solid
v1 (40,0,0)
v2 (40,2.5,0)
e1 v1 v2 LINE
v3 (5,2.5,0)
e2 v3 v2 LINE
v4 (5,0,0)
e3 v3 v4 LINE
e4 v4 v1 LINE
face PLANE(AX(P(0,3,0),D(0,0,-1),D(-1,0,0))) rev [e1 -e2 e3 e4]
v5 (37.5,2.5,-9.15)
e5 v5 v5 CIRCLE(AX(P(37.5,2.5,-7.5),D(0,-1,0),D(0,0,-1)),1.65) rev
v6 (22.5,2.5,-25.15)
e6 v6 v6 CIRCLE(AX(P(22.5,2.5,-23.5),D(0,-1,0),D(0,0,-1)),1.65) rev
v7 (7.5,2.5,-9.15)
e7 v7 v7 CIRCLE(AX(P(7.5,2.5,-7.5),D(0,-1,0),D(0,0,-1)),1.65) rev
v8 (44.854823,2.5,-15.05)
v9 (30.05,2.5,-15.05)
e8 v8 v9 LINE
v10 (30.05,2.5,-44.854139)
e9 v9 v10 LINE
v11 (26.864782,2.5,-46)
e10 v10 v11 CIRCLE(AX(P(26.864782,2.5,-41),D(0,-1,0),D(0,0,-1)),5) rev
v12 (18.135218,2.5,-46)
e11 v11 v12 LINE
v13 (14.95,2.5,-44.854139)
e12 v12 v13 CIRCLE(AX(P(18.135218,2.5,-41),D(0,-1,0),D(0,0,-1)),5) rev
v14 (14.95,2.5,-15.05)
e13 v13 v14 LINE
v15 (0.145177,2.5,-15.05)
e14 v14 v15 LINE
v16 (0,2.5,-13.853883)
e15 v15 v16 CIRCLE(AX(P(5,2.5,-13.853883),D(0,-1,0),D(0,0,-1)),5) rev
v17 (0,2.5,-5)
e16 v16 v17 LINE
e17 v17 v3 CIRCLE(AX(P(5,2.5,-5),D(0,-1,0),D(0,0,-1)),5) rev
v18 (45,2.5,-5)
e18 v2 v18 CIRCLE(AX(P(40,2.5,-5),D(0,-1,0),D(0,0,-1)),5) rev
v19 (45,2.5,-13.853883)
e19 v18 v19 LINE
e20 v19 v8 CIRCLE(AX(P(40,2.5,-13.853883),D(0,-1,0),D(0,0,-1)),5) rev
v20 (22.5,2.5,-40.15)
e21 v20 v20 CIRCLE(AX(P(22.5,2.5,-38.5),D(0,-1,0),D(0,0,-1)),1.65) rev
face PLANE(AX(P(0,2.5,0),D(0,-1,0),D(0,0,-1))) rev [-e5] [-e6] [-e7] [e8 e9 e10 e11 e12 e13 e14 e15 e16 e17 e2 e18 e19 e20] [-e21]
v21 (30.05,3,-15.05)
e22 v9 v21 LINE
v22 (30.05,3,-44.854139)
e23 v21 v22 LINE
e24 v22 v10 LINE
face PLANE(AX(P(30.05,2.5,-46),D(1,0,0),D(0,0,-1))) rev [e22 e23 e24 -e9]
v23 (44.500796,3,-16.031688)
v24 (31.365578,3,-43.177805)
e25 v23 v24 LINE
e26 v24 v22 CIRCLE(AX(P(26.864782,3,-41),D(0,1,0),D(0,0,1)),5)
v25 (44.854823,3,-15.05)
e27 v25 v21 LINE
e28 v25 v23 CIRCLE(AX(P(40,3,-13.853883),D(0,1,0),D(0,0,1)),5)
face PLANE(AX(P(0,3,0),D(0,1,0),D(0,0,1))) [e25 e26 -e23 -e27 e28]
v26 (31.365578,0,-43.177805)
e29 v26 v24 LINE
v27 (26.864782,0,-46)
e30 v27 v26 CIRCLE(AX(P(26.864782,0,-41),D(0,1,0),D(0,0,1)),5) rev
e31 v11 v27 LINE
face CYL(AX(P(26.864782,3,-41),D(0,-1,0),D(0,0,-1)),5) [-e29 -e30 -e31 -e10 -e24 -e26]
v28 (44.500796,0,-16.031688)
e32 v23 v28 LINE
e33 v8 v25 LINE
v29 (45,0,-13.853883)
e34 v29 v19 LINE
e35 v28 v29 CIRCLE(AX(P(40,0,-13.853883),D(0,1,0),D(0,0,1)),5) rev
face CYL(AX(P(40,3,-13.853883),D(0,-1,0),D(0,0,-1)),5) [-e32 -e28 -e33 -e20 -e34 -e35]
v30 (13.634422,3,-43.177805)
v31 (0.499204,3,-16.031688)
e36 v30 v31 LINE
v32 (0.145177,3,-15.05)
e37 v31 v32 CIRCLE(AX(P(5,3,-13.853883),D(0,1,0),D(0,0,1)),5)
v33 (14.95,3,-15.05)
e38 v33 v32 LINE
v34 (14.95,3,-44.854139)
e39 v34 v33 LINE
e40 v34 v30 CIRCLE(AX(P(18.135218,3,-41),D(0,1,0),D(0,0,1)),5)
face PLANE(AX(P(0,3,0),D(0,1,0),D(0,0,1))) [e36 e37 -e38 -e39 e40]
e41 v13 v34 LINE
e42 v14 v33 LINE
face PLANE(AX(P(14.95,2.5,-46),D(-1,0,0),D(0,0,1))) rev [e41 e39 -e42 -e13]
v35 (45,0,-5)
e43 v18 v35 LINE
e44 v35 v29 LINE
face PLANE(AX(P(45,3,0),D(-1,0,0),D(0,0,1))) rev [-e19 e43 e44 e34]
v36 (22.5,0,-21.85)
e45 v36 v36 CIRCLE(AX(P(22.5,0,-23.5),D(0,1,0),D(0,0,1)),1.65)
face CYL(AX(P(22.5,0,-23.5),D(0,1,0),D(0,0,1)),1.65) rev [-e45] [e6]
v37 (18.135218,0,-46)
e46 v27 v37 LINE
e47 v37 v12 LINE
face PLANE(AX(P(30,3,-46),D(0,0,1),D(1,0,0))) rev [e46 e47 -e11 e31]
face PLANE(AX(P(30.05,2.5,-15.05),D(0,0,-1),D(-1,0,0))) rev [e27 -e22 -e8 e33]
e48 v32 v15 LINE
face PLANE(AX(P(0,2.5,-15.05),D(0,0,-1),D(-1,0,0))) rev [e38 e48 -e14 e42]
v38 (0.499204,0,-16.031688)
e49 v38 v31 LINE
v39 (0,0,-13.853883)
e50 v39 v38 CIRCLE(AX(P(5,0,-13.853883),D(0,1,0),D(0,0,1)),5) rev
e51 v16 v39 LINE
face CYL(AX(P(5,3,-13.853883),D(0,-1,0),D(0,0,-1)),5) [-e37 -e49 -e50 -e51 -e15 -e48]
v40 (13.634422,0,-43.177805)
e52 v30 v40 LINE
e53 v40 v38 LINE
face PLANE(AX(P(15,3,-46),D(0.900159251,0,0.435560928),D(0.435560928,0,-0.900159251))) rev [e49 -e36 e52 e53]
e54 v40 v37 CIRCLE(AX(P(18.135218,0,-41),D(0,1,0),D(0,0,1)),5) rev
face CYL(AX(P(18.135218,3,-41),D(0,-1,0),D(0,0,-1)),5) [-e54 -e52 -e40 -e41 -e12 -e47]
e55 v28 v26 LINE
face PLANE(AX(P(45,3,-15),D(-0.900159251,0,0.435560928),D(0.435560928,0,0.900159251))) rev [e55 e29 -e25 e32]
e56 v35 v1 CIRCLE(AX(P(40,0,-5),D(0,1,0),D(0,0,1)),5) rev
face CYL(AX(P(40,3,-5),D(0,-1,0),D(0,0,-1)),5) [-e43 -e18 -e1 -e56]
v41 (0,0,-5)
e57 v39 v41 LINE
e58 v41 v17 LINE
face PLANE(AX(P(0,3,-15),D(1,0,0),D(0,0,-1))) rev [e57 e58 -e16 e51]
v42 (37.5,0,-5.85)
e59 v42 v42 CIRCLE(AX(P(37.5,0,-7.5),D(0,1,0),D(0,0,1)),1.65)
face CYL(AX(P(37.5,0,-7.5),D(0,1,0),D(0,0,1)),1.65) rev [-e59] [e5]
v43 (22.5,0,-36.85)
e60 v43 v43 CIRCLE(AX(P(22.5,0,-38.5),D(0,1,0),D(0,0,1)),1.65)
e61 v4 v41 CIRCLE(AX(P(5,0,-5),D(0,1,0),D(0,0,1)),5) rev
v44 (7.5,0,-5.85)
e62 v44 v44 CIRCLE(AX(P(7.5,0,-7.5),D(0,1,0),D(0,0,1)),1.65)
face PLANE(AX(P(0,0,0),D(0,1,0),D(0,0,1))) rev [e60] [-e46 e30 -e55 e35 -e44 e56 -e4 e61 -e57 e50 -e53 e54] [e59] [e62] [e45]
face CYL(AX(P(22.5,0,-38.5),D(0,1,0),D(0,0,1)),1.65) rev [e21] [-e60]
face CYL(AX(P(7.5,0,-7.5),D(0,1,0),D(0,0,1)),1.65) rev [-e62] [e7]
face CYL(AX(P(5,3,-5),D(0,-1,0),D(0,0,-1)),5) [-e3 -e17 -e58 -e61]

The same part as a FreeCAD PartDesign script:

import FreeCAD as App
import Part
import Sketcher

V = App.Vector


def edges_at(feature, points):
    """Names of the edges that pass closest to the given points."""
    edges = feature.Shape.Edges
    near = lambda p: min(range(len(edges)), key=lambda i: edges[i].distToShape(Part.Vertex(*p))[0])
    return sorted({f"Edge{near(p) + 1}" for p in points})

doc = App.newDocument("Part")
body = doc.addObject("PartDesign::Body", "Body")

# Sketch on XZ plane
sketch1 = body.newObject("Sketcher::SketchObject", "Sketch")
sketch1.AttachmentSupport = (doc.getObject("XZ_Plane"), [""])
sketch1.MapMode = "FlatFace"
sketch1.addGeometry([
    Part.LineSegment(V(0, 0, 0), V(45, 0, 0)),  # 0
    Part.LineSegment(V(45, 0, 0), V(45, -15, 0)),  # 1
    Part.LineSegment(V(45, -15, 0), V(30, -46, 0)),  # 2
    Part.LineSegment(V(30, -46, 0), V(15, -46, 0)),  # 3
    Part.LineSegment(V(15, -46, 0), V(0, -15, 0)),  # 4
    Part.LineSegment(V(0, -15, 0), V(0, 0, 0)),  # 5
], False)
sketch1.addConstraint([
    Sketcher.Constraint("Coincident", 0, 2, 1, 1),
    Sketcher.Constraint("Coincident", 1, 2, 2, 1),
    Sketcher.Constraint("Coincident", 2, 2, 3, 1),
    Sketcher.Constraint("Coincident", 3, 2, 4, 1),
    Sketcher.Constraint("Coincident", 4, 2, 5, 1),
    Sketcher.Constraint("Coincident", 5, 2, 0, 1),
    Sketcher.Constraint("Horizontal", 0),
    Sketcher.Constraint("Vertical", 1),
    Sketcher.Constraint("Horizontal", 3),
    Sketcher.Constraint("Vertical", 5),
    Sketcher.Constraint("Coincident", 5, 2, -1, 1),
    Sketcher.Constraint("Horizontal", 1, 2, 4, 2),
    Sketcher.Constraint("Equal", 3, 1),
    Sketcher.Constraint("Equal", 2, 4),
    Sketcher.Constraint("DistanceX", 0, 1, 0, 2, 45.0),
    Sketcher.Constraint("DistanceX", 3, 2, 3, 1, 15.0),
    Sketcher.Constraint("DistanceY", 2, 2, -1, 1, 46.0),
])
pad1 = body.newObject("PartDesign::Pad", "Pad")
pad1.Profile = sketch1
pad1.Length = 3
pad1.Reversed = True

# Sketch on XZ plane
sketch2 = body.newObject("Sketcher::SketchObject", "Sketch001")
sketch2.AttachmentSupport = (doc.getObject("XZ_Plane"), [""])
sketch2.MapMode = "FlatFace"
sketch2.AttachmentOffset = App.Placement(V(0, 0, -3), App.Rotation())
sketch2.addGeometry([
    Part.Circle(V(7.5, -7.5, 0), V(0, 0, 1), 1.6),
    Part.Circle(V(22.5, -38.5, 0), V(0, 0, 1), 1.6),
    Part.Circle(V(22.5, -23.5, 0), V(0, 0, 1), 1.6),
    Part.Circle(V(37.5, -7.5, 0), V(0, 0, 1), 1.6),
], False)
sketch2.addConstraint([
    Sketcher.Constraint("Equal", 0, 1),
    Sketcher.Constraint("Equal", 1, 2),
    Sketcher.Constraint("Equal", 2, 3),
    Sketcher.Constraint("Horizontal", 0, 3, 3, 3),
    Sketcher.Constraint("Vertical", 1, 3, 2, 3),
    Sketcher.Constraint("Diameter", 0, 3.3),
    Sketcher.Constraint("DistanceX", 0, 3, 1, 3, 15.0),
    Sketcher.Constraint("DistanceY", 1, 3, 0, 3, 31.0),
    Sketcher.Constraint("DistanceY", 1, 3, 2, 3, 15.0),
    Sketcher.Constraint("DistanceX", 2, 3, 3, 3, 15.0),
    Sketcher.Constraint("DistanceX", -1, 1, 0, 3, 7.5),
    Sketcher.Constraint("DistanceY", 0, 3, -1, 1, 7.5),
])
pocket1 = body.newObject("PartDesign::Pocket", "Pocket")
pocket1.Profile = sketch2
pocket1.Length = 3
pocket1.Reversed = True
doc.recompute()

fillet = body.newObject("PartDesign::Fillet", "Fillet")
fillet.Base = (pocket1, edges_at(pocket1, [
    (0, 1.5, -15),
    (15, 1.5, -46),
    (30, 1.5, -46),
    (45, 1.5, -15),
    (45, 1.5, 0),
    (0, 1.5, 0),
]))
fillet.Radius = 5

# Sketch on XZ plane
sketch3 = body.newObject("Sketcher::SketchObject", "Sketch002")
sketch3.AttachmentSupport = (doc.getObject("XZ_Plane"), [""])
sketch3.MapMode = "FlatFace"
sketch3.AttachmentOffset = App.Placement(V(0, 0, -3), App.Rotation())
sketch3.addGeometry([
    Part.LineSegment(V(0, 0, 0), V(45, 0, 0)),  # 0
    Part.LineSegment(V(45, 0, 0), V(45, -15, 0)),  # 1
    Part.LineSegment(V(45, -15, 0), V(30, -15, 0)),  # 2
    Part.LineSegment(V(30, -15, 0), V(30, -46, 0)),  # 3
    Part.LineSegment(V(30, -46, 0), V(15, -46, 0)),  # 4
    Part.LineSegment(V(15, -46, 0), V(15, -15, 0)),  # 5
    Part.LineSegment(V(15, -15, 0), V(0, -15, 0)),  # 6
    Part.LineSegment(V(0, -15, 0), V(0, 0, 0)),  # 7
], False)
sketch3.addConstraint([
    Sketcher.Constraint("Coincident", 0, 2, 1, 1),
    Sketcher.Constraint("Coincident", 1, 2, 2, 1),
    Sketcher.Constraint("Coincident", 2, 2, 3, 1),
    Sketcher.Constraint("Coincident", 3, 2, 4, 1),
    Sketcher.Constraint("Coincident", 4, 2, 5, 1),
    Sketcher.Constraint("Coincident", 5, 2, 6, 1),
    Sketcher.Constraint("Coincident", 6, 2, 7, 1),
    Sketcher.Constraint("Coincident", 7, 2, 0, 1),
    Sketcher.Constraint("Horizontal", 0),
    Sketcher.Constraint("Vertical", 1),
    Sketcher.Constraint("Horizontal", 2),
    Sketcher.Constraint("Vertical", 3),
    Sketcher.Constraint("Horizontal", 4),
    Sketcher.Constraint("Vertical", 5),
    Sketcher.Constraint("Horizontal", 6),
    Sketcher.Constraint("Vertical", 7),
    Sketcher.Constraint("Coincident", 7, 2, -1, 1),
    Sketcher.Constraint("Horizontal", 2, 2, 5, 2),
    Sketcher.Constraint("Equal", 2, 6),
    Sketcher.Constraint("DistanceX", 0, 1, 0, 2, 45.0),
    Sketcher.Constraint("DistanceX", 4, 2, 4, 1, 15.1),
    Sketcher.Constraint("DistanceY", 3, 2, -1, 1, 46.0),
    Sketcher.Constraint("DistanceY", 1, 2, 1, 1, 15.05),
])
pocket2 = body.newObject("PartDesign::Pocket", "Pocket001")
pocket2.Profile = sketch3
pocket2.Length = 0.5
pocket2.Reversed = True

doc.recompute()
